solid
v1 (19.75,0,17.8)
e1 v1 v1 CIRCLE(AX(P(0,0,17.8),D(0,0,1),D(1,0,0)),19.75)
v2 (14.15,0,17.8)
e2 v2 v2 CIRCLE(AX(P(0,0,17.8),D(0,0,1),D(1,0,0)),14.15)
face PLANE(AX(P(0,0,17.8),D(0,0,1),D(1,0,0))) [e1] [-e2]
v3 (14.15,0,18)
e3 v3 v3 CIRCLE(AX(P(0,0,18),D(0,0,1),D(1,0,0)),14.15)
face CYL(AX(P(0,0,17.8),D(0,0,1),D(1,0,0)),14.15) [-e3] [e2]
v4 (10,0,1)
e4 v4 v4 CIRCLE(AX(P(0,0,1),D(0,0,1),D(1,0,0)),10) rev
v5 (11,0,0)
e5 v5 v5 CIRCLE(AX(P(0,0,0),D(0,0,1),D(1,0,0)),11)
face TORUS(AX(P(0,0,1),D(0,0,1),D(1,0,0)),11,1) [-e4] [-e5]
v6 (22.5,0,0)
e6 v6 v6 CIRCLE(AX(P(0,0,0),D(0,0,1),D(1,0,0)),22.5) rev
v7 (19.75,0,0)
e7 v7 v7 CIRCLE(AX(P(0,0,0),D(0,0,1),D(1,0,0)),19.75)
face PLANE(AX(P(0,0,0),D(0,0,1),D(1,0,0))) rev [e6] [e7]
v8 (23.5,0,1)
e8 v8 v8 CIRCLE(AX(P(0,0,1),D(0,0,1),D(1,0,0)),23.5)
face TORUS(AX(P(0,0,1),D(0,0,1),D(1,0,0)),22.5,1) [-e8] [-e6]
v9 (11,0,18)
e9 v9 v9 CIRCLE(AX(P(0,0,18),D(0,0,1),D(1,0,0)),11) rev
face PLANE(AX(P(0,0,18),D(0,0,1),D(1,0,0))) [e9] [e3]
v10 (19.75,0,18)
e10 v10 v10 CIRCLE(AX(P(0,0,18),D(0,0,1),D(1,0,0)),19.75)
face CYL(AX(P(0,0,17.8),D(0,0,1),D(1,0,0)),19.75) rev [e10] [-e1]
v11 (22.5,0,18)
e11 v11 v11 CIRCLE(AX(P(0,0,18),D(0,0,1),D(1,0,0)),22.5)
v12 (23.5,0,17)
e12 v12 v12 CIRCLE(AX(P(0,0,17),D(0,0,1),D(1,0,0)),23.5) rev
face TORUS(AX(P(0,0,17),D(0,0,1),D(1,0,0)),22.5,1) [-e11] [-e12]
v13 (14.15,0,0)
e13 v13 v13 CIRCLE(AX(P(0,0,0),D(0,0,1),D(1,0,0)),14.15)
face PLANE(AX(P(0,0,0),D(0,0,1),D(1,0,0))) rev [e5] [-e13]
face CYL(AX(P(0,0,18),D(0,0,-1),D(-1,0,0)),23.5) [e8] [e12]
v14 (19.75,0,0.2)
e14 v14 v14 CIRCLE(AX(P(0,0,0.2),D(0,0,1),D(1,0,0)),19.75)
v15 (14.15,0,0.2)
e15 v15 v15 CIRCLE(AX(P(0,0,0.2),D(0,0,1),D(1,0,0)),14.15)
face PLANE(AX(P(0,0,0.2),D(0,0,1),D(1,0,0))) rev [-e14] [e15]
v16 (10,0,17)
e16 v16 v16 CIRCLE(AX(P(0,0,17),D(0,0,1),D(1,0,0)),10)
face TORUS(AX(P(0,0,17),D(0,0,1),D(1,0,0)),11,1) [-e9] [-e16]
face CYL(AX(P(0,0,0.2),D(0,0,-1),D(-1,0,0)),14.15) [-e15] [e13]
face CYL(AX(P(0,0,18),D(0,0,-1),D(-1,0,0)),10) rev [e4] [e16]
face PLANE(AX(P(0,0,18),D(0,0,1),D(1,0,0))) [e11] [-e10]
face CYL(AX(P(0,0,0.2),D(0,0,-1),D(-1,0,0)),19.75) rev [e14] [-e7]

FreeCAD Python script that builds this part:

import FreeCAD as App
import Part
import Sketcher
from FreeCAD import Vector


def edges_at(feature, points):
    """Names of the edges that pass closest to the given points."""
    edges = feature.Shape.Edges
    near = lambda p: min(range(len(edges)), key=lambda i: edges[i].distToShape(Part.Vertex(*p))[0])
    return sorted({f"Edge{near(p) + 1}" for p in points})

doc = App.newDocument("Part")
body = doc.addObject("PartDesign::Body", "Body")

# Sketch on XY plane
sketch1 = body.newObject("Sketcher::SketchObject", "Sketch")
sketch1.AttachmentSupport = (doc.getObject("XY_Plane"), [""])
sketch1.MapMode = "FlatFace"
sketch1.addGeometry([
    Part.Circle(Vector(0, 0, 0), Vector(0, 0, 1), 23.5),
    Part.Circle(Vector(0, 0, 0), Vector(0, 0, 1), 10),
], False)
sketch1.addConstraint([
    Sketcher.Constraint("Coincident", 0, 3, -1, 1),
    Sketcher.Constraint("Coincident", 1, 3, -1, 1),
    Sketcher.Constraint("Diameter", 0, 47.0),
    Sketcher.Constraint("Diameter", 1, 20.0),
])
pad1 = body.newObject("PartDesign::Pad", "Pad")
pad1.Profile = sketch1
pad1.Length = 18
doc.recompute()

fillet = body.newObject("PartDesign::Fillet", "Fillet")
fillet.Base = (pad1, edges_at(pad1, [
    (-23.5, 0, 0),
    (-23.5, 0, 18),
    (-10, 0, 0),
    (-10, 0, 18),
]))
fillet.Radius = 1

# Sketch on XY plane
sketch2 = body.newObject("Sketcher::SketchObject", "Sketch001")
sketch2.AttachmentSupport = (doc.getObject("XY_Plane"), [""])
sketch2.MapMode = "FlatFace"
sketch2.AttachmentOffset = App.Placement(Vector(0, 0, 18), App.Rotation())
sketch2.addGeometry([
    Part.Circle(Vector(0, 0, 0), Vector(0, 0, 1), 19.75),
    Part.Circle(Vector(0, 0, 0), Vector(0, 0, 1), 14.15),
], False)
sketch2.addConstraint([
    Sketcher.Constraint("Coincident", 0, 3, -1, 1),
    Sketcher.Constraint("Coincident", 1, 3, -1, 1),
    Sketcher.Constraint("Diameter", 0, 39.5),
    Sketcher.Constraint("Diameter", 1, 28.3),
])
pocket1 = body.newObject("PartDesign::Pocket", "Pocket")
pocket1.Profile = sketch2
pocket1.Length = 0.2

# Sketch on XY plane
sketch3 = body.newObject("Sketcher::SketchObject", "Sketch002")
sketch3.AttachmentSupport = (doc.getObject("XY_Plane"), [""])
sketch3.MapMode = "FlatFace"
sketch3.AttachmentOffset = App.Placement(Vector(0, 0, 0.2), App.Rotation())
sketch3.addGeometry([
    Part.Circle(Vector(0, 0, 0), Vector(0, 0, 1), 19.75),
    Part.Circle(Vector(0, 0, 0), Vector(0, 0, 1), 14.15),
], False)
sketch3.addConstraint([
    Sketcher.Constraint("Coincident", 0, 3, -1, 1),
    Sketcher.Constraint("Coincident", 1, 3, -1, 1),
    Sketcher.Constraint("Diameter", 0, 39.5),
    Sketcher.Constraint("Diameter", 1, 28.3),
])
pocket2 = body.newObject("PartDesign::Pocket", "Pocket001")
pocket2.Profile = sketch3
pocket2.Length = 0.2

doc.recompute()
